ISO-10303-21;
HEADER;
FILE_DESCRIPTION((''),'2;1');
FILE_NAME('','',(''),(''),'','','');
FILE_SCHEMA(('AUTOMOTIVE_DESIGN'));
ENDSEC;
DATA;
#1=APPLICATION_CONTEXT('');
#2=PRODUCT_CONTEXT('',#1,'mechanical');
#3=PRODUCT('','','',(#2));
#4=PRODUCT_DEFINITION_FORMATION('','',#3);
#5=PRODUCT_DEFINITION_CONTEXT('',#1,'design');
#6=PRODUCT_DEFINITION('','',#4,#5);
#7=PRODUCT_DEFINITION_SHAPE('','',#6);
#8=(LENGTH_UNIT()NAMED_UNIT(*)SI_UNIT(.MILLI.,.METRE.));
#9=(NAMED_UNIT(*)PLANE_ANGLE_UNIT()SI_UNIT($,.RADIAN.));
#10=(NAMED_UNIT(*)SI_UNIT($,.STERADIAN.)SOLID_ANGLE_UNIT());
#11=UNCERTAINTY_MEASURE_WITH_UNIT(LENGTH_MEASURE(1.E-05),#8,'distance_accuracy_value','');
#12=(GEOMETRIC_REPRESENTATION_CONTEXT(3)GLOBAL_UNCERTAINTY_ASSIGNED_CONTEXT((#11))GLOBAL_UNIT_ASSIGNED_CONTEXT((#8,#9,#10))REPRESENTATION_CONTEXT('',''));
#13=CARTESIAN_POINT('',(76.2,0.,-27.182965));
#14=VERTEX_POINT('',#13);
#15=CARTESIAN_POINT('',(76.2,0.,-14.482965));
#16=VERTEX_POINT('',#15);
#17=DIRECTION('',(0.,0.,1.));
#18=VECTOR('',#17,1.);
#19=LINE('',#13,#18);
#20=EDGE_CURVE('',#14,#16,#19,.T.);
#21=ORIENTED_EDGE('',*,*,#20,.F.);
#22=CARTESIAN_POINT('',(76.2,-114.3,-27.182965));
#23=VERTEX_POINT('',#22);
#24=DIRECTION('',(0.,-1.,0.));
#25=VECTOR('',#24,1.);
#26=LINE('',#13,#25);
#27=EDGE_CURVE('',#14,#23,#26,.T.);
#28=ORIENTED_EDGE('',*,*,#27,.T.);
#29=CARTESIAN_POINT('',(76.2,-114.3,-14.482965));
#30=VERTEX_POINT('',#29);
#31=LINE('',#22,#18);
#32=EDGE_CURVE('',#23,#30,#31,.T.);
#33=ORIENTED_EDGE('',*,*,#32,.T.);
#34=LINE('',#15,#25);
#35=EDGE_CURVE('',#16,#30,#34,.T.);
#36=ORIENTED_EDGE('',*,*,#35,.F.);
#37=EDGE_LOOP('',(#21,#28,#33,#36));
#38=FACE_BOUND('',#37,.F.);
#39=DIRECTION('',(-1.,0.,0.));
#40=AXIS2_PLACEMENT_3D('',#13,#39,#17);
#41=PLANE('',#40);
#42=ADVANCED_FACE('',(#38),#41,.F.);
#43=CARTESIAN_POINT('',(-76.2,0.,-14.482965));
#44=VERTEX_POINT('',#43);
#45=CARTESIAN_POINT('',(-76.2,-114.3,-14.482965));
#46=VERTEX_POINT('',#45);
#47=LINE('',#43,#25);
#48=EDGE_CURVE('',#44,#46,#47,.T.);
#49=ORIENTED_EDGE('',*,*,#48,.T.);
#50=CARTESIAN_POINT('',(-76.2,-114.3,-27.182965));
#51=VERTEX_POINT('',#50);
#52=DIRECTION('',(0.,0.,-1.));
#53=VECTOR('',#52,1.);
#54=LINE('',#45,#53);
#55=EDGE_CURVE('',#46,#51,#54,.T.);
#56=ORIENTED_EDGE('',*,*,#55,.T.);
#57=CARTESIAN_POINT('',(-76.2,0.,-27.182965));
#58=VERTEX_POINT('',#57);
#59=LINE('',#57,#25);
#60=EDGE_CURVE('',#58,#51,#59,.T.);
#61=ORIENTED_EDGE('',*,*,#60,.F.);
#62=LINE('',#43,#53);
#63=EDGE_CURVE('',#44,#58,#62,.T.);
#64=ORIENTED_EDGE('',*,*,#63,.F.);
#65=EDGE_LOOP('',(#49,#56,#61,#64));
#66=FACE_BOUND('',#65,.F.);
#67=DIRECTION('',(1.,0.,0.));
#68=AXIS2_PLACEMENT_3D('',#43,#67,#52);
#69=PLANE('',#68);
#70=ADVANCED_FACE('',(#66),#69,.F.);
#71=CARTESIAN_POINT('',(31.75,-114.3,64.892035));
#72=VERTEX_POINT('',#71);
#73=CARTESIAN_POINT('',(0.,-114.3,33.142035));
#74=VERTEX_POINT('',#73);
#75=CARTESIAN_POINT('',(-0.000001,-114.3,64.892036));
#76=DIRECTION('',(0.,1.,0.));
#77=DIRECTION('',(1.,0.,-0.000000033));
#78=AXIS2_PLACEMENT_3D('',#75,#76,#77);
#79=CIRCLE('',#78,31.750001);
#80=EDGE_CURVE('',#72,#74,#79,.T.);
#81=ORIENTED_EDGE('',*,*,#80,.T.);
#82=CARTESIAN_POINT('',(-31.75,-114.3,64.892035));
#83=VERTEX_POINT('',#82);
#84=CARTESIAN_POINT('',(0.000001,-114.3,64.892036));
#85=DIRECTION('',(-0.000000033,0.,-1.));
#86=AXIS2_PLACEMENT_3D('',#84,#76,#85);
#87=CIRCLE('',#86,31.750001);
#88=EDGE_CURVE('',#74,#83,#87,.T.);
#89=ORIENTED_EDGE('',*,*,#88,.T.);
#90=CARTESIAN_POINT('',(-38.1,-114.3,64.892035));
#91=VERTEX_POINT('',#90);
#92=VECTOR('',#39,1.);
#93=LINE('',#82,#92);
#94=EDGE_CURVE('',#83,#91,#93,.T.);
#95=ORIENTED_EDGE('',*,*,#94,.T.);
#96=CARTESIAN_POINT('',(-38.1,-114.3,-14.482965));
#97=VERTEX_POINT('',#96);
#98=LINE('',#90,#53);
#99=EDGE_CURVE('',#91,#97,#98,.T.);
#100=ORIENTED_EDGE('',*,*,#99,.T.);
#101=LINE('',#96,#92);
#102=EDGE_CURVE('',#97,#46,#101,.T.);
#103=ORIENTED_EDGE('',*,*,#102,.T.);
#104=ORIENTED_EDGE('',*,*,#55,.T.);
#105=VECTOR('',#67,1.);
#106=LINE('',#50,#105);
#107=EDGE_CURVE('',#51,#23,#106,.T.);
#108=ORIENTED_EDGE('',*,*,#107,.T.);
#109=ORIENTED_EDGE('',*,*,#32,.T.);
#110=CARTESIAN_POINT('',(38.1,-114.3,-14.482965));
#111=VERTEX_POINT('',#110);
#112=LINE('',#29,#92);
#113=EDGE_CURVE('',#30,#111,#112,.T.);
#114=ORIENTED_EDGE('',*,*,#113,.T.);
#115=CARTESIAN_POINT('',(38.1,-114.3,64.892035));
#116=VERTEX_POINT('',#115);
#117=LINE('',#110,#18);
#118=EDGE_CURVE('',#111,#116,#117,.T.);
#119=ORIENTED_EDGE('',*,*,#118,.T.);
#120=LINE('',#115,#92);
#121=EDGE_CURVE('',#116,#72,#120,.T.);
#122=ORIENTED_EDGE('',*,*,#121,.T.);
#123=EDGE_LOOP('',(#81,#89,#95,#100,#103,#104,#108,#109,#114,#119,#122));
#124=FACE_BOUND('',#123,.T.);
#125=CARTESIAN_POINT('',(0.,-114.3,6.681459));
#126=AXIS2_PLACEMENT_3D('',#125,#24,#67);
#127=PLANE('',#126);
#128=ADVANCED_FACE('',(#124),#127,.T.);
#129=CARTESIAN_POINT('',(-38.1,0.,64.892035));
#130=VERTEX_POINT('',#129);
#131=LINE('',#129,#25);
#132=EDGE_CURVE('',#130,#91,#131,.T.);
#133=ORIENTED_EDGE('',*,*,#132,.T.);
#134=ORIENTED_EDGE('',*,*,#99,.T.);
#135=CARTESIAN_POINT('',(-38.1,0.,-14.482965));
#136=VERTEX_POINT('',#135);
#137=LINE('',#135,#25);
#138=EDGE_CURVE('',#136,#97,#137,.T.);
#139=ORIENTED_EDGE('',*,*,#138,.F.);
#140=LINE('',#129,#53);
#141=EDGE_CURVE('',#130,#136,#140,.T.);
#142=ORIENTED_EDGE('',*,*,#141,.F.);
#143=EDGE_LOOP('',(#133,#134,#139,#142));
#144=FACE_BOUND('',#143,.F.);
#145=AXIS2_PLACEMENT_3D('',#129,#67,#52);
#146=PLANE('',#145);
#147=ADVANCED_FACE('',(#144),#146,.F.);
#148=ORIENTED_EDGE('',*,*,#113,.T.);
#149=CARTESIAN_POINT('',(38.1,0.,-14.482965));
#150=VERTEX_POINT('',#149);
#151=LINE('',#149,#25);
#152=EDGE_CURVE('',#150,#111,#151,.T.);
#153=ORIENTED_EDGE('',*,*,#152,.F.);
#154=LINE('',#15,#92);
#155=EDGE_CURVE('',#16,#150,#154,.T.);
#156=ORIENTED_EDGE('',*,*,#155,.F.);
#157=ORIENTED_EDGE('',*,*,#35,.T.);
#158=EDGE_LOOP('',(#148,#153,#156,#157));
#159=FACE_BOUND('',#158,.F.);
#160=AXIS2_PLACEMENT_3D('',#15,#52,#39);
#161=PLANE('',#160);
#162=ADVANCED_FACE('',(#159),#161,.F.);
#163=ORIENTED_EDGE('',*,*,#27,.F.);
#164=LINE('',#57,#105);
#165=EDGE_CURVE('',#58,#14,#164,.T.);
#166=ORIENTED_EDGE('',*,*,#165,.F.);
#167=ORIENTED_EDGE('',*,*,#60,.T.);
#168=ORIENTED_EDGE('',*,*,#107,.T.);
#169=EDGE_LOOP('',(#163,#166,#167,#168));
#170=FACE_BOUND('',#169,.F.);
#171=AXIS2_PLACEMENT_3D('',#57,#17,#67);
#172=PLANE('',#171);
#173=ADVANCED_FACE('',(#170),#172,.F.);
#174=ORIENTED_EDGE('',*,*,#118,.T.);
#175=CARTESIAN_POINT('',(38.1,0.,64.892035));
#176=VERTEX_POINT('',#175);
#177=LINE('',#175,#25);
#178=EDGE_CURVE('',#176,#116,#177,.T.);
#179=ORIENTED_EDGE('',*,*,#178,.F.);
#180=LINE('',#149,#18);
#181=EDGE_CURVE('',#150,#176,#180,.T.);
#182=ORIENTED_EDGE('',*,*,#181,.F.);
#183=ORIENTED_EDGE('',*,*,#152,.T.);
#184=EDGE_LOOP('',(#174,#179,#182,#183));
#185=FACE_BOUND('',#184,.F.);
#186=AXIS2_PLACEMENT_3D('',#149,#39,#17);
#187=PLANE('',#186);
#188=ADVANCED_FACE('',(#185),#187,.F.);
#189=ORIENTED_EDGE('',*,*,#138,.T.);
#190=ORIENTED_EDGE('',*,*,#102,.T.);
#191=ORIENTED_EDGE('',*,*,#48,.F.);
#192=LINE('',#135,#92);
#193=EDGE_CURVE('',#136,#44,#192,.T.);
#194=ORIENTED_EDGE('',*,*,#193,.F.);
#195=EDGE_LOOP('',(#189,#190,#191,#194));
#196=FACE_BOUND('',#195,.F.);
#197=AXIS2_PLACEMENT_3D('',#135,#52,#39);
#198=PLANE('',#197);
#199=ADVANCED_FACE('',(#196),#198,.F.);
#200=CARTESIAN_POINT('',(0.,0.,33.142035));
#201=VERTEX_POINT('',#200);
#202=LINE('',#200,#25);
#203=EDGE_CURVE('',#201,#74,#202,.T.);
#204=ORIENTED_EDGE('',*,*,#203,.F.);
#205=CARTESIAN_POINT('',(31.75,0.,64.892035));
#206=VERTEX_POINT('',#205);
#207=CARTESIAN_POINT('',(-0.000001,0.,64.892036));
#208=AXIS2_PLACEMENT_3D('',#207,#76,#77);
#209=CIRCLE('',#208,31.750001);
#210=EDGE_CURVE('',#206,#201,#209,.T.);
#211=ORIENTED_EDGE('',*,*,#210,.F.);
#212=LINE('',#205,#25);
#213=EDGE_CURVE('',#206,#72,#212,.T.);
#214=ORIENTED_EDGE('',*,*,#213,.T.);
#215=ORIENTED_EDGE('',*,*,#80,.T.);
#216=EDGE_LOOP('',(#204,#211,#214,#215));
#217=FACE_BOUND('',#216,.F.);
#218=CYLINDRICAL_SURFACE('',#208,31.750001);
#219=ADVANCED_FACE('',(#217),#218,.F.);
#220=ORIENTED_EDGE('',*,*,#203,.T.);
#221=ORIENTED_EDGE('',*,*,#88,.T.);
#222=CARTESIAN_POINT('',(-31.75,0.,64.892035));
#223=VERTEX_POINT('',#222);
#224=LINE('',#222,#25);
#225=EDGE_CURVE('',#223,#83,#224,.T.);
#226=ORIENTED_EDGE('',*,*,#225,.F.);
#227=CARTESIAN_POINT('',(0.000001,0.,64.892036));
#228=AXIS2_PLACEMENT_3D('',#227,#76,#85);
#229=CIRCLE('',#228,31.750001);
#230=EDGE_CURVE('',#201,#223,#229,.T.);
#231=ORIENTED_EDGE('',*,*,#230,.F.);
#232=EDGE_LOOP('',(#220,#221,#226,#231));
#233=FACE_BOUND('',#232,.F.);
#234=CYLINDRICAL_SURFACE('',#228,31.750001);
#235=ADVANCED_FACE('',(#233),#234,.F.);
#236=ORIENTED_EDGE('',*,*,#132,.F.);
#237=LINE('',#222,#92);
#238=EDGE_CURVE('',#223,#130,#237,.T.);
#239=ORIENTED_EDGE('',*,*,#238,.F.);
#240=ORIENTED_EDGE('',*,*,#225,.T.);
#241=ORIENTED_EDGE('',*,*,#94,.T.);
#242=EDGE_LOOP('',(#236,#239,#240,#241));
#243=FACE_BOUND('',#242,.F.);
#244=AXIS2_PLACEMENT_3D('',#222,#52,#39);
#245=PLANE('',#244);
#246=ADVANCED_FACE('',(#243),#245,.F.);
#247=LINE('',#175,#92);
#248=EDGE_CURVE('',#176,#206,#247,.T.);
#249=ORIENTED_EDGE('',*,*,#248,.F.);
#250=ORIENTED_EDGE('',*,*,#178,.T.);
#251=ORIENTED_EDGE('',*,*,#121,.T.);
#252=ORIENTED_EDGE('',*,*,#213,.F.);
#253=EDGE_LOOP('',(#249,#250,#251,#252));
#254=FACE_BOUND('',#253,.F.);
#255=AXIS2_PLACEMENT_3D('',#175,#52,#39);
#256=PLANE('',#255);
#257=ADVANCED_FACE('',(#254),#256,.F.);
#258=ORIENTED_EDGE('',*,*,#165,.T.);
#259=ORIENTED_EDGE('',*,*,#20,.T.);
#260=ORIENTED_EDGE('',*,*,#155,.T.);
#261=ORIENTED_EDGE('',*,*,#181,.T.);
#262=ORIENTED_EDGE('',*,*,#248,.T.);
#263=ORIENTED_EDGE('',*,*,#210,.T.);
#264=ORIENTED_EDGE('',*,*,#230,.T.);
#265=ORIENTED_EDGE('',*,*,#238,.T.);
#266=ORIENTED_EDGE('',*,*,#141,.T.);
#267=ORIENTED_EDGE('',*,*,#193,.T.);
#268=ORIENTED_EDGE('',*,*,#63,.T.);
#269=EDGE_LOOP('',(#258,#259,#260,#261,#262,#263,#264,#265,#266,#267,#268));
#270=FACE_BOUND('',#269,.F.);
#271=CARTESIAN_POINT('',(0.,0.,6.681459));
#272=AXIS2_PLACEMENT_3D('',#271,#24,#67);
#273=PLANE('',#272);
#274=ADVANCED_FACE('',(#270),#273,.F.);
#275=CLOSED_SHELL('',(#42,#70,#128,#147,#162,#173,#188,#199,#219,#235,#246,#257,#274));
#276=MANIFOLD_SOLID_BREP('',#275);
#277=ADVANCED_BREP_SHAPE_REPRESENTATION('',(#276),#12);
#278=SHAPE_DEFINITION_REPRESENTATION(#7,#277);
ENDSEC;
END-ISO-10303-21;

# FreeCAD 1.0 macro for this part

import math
import FreeCAD as App
import Part
import Sketcher
from FreeCAD import Vector
Q = App.Units.Quantity

doc = App.newDocument("Part")
body = doc.addObject("PartDesign::Body", "Body")

sketch1 = doc.addObject("Sketcher::SketchObject", "Sketch")
body.addObject(sketch1)
sketch1.AttachmentSupport = (doc.XZ_Plane, [""])
sketch1.MapMode = "FlatFace"
sketch1.addGeometry([
    Part.LineSegment(Vector(-76.2, -14.482965, 0), Vector(-76.2, -27.182965, 0)),
    Part.LineSegment(Vector(-76.2, -27.182965, 0), Vector(76.2, -27.182965, 0)),
    Part.LineSegment(Vector(76.2, -27.182965, 0), Vector(76.2, -14.482965, 0)),
    Part.LineSegment(Vector(76.2, -14.482965, 0), Vector(38.1, -14.482965, 0)),
    Part.LineSegment(Vector(38.1, -14.482965, 0), Vector(38.1, 64.892035, 0)),
    Part.LineSegment(Vector(38.1, 64.892035, 0), Vector(31.75, 64.892035, 0)),
    Part.ArcOfCircle(Part.Circle(Vector(-0.000001, 64.892036, 0), Vector(0, 0, 1), 31.750001), math.radians(-89.999998), math.radians(-0.000002)),
    Part.ArcOfCircle(Part.Circle(Vector(0.000001, 64.892036, 0), Vector(0, 0, 1), 31.750001), math.radians(-179.999998), math.radians(-90.000002)),
    Part.LineSegment(Vector(-31.75, 64.892035, 0), Vector(-38.1, 64.892035, 0)),
    Part.LineSegment(Vector(-38.1, 64.892035, 0), Vector(-38.1, -14.482965, 0)),
    Part.LineSegment(Vector(-38.1, -14.482965, 0), Vector(-76.2, -14.482965, 0)),
], False)
sketch1.addConstraint([
    Sketcher.Constraint("Coincident", 0, 2, 1, 1),
    Sketcher.Constraint("Coincident", 1, 2, 2, 1),
    Sketcher.Constraint("Coincident", 2, 2, 3, 1),
    Sketcher.Constraint("Coincident", 3, 2, 4, 1),
    Sketcher.Constraint("Coincident", 4, 2, 5, 1),
    Sketcher.Constraint("Coincident", 5, 2, 6, 2),
    Sketcher.Constraint("Tangent", 6, 1, 7, 2),
    Sketcher.Constraint("Coincident", 7, 1, 8, 1),
    Sketcher.Constraint("Coincident", 8, 2, 9, 1),
    Sketcher.Constraint("Coincident", 9, 2, 10, 1),
    Sketcher.Constraint("Coincident", 10, 2, 0, 1),
    Sketcher.Constraint("Vertical", 0),
    Sketcher.Constraint("Horizontal", 1),
    Sketcher.Constraint("Vertical", 2),
    Sketcher.Constraint("Horizontal", 3),
    Sketcher.Constraint("Vertical", 4),
    Sketcher.Constraint("Horizontal", 5),
    Sketcher.Constraint("Horizontal", 8),
    Sketcher.Constraint("Vertical", 9),
    Sketcher.Constraint("Horizontal", 10),
    Sketcher.Constraint("Equal", 6, 7),
    Sketcher.Constraint("Symmetric", 5, 2, 7, 1, -2),
    Sketcher.Constraint("Symmetric", 3, 2, 9, 2, -2),
    Sketcher.Constraint("PointOnObject", 6, 1, -2),
    Sketcher.Constraint("Horizontal", 7, 3, 4, 2),
    Sketcher.Constraint("Equal", 3, 10),
    Sketcher.Constraint("DistanceX", 1, 1, 1, 2, Q("6 in")),
    Sketcher.Constraint("Radius", 6, Q("1.25 in")),
    Sketcher.Constraint("DistanceX", 3, 2, 3, 1, Q("1.5 in")),
    Sketcher.Constraint("DistanceY", 0, 2, 0, 1, Q("0.5 in")),
    Sketcher.Constraint("DistanceY", 4, 1, 4, 2, Q("3.125 in")),
    Sketcher.Constraint("DistanceY", -1, 1, 6, 3, Q("64.892036 mm")),
])
pad1 = doc.addObject("PartDesign::Pad", "Pad")
body.addObject(pad1)
pad1.Profile = sketch1
pad1.Length = Q("4.5 in")

doc.recompute()
